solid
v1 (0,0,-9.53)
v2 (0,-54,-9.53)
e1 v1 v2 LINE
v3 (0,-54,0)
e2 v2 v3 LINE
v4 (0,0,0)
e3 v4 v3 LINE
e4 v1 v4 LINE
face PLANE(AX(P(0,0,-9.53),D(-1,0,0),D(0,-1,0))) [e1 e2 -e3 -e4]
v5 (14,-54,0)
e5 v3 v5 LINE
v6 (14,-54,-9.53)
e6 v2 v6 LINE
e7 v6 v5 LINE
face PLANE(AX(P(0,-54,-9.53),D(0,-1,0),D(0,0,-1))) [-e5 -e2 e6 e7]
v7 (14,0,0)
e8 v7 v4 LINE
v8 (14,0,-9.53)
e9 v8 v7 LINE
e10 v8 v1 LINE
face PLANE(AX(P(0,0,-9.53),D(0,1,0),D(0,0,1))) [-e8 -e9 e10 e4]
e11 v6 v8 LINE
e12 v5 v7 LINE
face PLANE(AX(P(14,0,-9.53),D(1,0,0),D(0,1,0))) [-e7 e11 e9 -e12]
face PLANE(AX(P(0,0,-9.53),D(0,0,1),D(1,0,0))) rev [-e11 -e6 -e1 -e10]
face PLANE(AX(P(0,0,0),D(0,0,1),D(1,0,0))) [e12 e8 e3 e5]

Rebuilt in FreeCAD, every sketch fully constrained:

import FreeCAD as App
import Part
import Sketcher
from FreeCAD import Vector


def add_polygon(sketch, points):
    """Adds a closed chain of lines whose ends are joined by coincident constraints."""
    first, n = sketch.GeometryCount, len(points)
    for a, b in zip(points, points[1:] + points[:1]):
        sketch.addGeometry(Part.LineSegment(App.Vector(*a, 0), App.Vector(*b, 0)), False)
    for i in range(n):
        sketch.addConstraint(Sketcher.Constraint("Coincident", first + i, 2, first + (i + 1) % n, 1))

doc = App.newDocument("Part")
body = doc.addObject("PartDesign::Body", "Body")

# Sketch on XY plane
sketch1 = body.newObject("Sketcher::SketchObject", "Sketch")
sketch1.AttachmentSupport = (doc.getObject("XY_Plane"), [""])
sketch1.MapMode = "FlatFace"
add_polygon(sketch1, [(0, 0), (0, -54), (14, -54), (14, 0)])  # lines 0-3
sketch1.addConstraint([
    Sketcher.Constraint("Vertical", 0),
    Sketcher.Constraint("Horizontal", 1),
    Sketcher.Constraint("Vertical", 2),
    Sketcher.Constraint("Horizontal", 3),
    Sketcher.Constraint("Coincident", 3, 2, -1, 1),
    Sketcher.Constraint("DistanceX", 1, 1, 1, 2, 14.0),
    Sketcher.Constraint("DistanceY", 0, 2, 0, 1, 54.0),
])
pad1 = body.newObject("PartDesign::Pad", "Pad")
pad1.Profile = sketch1
pad1.Length = 9.53
pad1.Reversed = True

doc.recompute()
